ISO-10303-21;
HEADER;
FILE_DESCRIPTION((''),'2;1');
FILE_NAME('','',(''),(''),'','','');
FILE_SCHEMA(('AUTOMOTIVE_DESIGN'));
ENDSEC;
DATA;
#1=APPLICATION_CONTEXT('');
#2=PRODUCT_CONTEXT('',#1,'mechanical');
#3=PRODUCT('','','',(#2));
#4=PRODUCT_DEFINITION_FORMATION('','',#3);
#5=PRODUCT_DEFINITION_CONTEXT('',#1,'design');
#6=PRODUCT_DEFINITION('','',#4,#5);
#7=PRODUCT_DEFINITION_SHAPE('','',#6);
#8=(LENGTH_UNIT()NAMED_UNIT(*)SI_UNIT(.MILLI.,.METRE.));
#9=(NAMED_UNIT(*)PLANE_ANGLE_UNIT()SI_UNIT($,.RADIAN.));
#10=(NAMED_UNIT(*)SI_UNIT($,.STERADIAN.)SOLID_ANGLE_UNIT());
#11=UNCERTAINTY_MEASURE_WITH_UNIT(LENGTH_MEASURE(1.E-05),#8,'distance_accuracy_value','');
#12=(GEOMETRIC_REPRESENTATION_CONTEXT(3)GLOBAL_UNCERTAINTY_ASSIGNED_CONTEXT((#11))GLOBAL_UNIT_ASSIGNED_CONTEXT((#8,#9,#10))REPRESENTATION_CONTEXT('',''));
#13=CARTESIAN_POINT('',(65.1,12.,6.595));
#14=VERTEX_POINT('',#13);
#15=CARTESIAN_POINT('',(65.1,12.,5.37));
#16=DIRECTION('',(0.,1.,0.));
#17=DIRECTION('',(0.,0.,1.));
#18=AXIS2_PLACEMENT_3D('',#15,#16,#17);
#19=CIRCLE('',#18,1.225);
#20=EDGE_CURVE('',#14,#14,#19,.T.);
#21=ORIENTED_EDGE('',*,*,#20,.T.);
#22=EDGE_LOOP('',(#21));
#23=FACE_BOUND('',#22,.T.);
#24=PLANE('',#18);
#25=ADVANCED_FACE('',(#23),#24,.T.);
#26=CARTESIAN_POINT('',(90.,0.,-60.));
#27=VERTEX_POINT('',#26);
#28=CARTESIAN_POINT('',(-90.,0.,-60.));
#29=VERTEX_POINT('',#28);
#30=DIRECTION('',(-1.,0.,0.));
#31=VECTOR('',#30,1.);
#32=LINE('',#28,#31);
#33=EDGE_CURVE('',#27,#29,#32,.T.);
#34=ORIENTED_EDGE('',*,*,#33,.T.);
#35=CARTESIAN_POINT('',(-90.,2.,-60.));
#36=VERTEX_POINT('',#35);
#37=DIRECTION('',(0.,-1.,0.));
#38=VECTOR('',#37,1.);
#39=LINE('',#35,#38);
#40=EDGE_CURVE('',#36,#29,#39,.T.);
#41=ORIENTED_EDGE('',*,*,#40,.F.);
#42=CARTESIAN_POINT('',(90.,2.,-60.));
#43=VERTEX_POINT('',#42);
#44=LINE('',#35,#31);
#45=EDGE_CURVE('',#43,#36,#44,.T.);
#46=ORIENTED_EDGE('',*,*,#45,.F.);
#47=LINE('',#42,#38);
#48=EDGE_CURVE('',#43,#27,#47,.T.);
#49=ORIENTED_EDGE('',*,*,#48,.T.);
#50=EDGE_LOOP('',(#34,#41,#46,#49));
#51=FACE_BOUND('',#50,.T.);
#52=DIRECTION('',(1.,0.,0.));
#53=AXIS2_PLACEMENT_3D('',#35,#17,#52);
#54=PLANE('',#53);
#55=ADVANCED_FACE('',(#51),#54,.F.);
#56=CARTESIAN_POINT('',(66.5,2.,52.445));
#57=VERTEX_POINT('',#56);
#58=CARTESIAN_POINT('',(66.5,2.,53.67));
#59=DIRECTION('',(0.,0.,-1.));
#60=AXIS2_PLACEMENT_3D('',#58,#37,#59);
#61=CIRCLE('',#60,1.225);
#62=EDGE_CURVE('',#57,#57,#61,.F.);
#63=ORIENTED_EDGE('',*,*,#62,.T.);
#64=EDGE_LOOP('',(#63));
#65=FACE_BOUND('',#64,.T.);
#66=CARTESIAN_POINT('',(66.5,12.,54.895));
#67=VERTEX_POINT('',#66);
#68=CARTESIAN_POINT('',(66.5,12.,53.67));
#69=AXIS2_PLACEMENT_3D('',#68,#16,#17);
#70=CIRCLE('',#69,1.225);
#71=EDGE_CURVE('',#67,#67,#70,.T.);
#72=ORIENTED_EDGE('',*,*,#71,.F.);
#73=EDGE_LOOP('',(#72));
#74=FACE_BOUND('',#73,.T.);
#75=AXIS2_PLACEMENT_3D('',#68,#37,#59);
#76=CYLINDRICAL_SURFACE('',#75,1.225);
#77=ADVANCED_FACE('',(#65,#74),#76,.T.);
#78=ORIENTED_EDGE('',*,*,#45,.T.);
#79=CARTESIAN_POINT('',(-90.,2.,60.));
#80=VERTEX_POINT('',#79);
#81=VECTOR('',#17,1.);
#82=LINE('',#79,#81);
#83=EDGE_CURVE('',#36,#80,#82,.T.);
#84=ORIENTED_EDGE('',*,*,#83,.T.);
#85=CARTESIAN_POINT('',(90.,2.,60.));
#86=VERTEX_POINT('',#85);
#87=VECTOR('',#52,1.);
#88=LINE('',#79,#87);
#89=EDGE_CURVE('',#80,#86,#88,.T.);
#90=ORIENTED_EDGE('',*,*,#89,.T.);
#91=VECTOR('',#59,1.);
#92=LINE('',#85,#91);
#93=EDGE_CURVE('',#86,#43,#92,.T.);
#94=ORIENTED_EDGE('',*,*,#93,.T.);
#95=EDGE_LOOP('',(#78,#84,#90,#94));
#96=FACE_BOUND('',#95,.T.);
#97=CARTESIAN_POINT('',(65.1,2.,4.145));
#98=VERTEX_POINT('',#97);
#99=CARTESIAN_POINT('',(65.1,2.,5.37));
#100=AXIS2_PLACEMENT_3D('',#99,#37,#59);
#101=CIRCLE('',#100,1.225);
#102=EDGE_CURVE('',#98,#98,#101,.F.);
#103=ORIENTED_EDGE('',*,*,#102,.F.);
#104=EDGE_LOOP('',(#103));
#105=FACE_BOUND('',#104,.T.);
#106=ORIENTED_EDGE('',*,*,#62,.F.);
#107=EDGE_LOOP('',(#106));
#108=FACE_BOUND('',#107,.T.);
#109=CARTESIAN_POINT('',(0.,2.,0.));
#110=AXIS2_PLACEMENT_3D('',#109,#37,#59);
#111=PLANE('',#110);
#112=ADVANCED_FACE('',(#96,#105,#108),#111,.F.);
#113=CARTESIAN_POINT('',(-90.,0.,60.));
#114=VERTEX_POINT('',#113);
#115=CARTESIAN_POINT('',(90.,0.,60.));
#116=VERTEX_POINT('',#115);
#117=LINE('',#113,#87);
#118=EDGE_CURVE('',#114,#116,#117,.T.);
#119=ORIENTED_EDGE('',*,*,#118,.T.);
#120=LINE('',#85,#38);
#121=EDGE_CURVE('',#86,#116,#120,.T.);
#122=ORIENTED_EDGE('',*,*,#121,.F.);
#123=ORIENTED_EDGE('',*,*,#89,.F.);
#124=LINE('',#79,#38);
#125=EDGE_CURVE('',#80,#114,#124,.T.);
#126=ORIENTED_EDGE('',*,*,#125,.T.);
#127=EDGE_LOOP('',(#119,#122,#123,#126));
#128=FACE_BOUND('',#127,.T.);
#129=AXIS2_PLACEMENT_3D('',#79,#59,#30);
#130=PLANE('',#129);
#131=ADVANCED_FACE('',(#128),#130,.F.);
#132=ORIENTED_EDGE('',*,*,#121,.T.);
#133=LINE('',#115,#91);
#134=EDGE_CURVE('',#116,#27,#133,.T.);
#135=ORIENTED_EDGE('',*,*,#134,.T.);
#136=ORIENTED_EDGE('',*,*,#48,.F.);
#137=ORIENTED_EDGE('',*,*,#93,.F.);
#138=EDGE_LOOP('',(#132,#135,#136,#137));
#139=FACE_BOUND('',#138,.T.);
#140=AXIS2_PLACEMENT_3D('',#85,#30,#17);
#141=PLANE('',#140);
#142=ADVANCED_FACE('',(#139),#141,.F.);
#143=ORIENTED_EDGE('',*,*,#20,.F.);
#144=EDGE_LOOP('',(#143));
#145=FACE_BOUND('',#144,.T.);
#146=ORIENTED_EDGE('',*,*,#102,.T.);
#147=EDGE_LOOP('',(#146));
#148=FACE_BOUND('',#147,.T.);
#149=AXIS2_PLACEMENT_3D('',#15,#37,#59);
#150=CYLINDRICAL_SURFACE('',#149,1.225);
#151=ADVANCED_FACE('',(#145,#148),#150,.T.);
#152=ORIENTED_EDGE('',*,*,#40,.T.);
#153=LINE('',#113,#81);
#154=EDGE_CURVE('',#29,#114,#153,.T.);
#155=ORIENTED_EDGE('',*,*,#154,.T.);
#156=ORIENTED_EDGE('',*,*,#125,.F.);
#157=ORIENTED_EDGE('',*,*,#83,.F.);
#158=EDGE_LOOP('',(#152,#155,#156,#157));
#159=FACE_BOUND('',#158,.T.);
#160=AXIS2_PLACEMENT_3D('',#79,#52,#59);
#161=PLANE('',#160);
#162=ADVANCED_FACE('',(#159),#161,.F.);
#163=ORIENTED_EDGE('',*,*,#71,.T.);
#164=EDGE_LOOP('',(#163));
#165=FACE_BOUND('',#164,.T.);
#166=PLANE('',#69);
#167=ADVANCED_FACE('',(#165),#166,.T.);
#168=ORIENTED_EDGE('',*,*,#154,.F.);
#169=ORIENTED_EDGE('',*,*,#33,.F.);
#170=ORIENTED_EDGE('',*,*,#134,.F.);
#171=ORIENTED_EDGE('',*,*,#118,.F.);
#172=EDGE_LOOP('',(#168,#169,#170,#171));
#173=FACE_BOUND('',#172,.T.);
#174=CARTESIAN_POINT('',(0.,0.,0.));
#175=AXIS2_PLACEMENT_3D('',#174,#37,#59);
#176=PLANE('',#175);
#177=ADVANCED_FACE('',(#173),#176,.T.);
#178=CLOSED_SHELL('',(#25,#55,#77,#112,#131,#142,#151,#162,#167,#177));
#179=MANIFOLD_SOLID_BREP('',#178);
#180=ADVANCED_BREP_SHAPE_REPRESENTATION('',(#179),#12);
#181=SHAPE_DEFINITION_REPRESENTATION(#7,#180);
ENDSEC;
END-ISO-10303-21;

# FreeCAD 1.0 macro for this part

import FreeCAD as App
import Part
import Sketcher
Q = App.Units.Quantity

doc = App.newDocument("Part")
body = doc.addObject("PartDesign::Body", "Body")

# Sketch on XZ plane
sketch1 = doc.addObject("Sketcher::SketchObject", "Sketch")
body.addObject(sketch1)
sketch1.AttachmentSupport = (doc.XZ_Plane, [""])
sketch1.MapMode = "FlatFace"
sketch1.addGeometry(Part.LineSegment(App.Vector(-90, -60, 0), App.Vector(-90, 60, 0)), False)
sketch1.addGeometry(Part.LineSegment(App.Vector(-90, 60, 0), App.Vector(90, 60, 0)), False)
sketch1.addGeometry(Part.LineSegment(App.Vector(90, 60, 0), App.Vector(90, -60, 0)), False)
sketch1.addGeometry(Part.LineSegment(App.Vector(90, -60, 0), App.Vector(-90, -60, 0)), False)
sketch1.addConstraint(Sketcher.Constraint("Coincident", 0, 2, 1, 1))
sketch1.addConstraint(Sketcher.Constraint("Coincident", 1, 2, 2, 1))
sketch1.addConstraint(Sketcher.Constraint("Coincident", 2, 2, 3, 1))
sketch1.addConstraint(Sketcher.Constraint("Coincident", 3, 2, 0, 1))
sketch1.addConstraint(Sketcher.Constraint("Vertical", 0))
sketch1.addConstraint(Sketcher.Constraint("Horizontal", 1))
sketch1.addConstraint(Sketcher.Constraint("Vertical", 2))
sketch1.addConstraint(Sketcher.Constraint("Horizontal", 3))
sketch1.addConstraint(Sketcher.Constraint("Symmetric", 0, 2, 2, 2, -1, 1))
sketch1.addConstraint(Sketcher.Constraint("DistanceX", 1, 1, 1, 2, Q("180 mm")))
sketch1.addConstraint(Sketcher.Constraint("DistanceY", 0, 1, 0, 2, Q("120 mm")))
pad1 = doc.addObject("PartDesign::Pad", "Pad")
body.addObject(pad1)
pad1.Profile = sketch1
pad1.Length = 2
pad1.Reversed = True

# Sketch on XZ plane
sketch2 = doc.addObject("Sketcher::SketchObject", "Sketch001")
body.addObject(sketch2)
sketch2.AttachmentSupport = (doc.XZ_Plane, [""])
sketch2.MapMode = "FlatFace"
sketch2.AttachmentOffset = App.Placement(App.Vector(0, 0, -2), App.Rotation())
sketch2.addGeometry(Part.Circle(App.Vector(66.5, 53.7, 0), App.Vector(0, 0, 1), 1.2), False)
sketch2.addGeometry(Part.Circle(App.Vector(65.1, 5.4, 0), App.Vector(0, 0, 1), 1.2), False)
sketch2.addConstraint(Sketcher.Constraint("Equal", 0, 1))
sketch2.addConstraint(Sketcher.Constraint("Diameter", 0, Q("2.45 mm")))
sketch2.addConstraint(Sketcher.Constraint("DistanceX", -1, 1, 0, 3, Q("66.5 mm")))
sketch2.addConstraint(Sketcher.Constraint("DistanceX", -1, 1, 1, 3, Q("65.1 mm")))
sketch2.addConstraint(Sketcher.Constraint("DistanceY", 1, 3, 0, 3, Q("48.3 mm")))
sketch2.addConstraint(Sketcher.Constraint("DistanceY", -1, 1, 0, 3, Q("53.67 mm")))
pad2 = doc.addObject("PartDesign::Pad", "Pad001")
body.addObject(pad2)
pad2.Profile = sketch2
pad2.Length = 10
pad2.Reversed = True

doc.recompute()
